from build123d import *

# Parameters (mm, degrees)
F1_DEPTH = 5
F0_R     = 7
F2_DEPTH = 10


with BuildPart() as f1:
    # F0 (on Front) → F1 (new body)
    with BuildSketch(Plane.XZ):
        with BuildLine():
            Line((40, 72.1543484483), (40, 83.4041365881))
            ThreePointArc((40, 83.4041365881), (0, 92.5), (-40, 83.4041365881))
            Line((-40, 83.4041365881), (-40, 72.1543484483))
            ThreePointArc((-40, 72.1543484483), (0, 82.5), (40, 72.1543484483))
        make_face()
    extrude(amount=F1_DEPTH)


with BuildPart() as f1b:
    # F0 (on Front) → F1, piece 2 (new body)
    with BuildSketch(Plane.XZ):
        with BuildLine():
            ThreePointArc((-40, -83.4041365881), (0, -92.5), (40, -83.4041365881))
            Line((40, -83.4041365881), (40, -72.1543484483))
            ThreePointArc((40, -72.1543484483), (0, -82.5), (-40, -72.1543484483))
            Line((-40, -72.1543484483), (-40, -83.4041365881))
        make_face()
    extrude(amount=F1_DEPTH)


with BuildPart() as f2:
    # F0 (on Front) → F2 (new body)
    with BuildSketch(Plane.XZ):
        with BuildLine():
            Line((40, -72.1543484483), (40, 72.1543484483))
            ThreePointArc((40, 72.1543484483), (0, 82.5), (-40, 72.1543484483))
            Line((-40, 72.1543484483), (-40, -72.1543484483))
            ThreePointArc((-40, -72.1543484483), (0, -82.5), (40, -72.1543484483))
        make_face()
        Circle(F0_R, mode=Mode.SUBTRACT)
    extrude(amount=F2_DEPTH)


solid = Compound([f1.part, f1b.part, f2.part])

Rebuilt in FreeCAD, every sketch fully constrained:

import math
import FreeCAD as App
import Part
import Sketcher
from FreeCAD import Vector

doc = App.newDocument("Part")
body = doc.addObject("PartDesign::Body", "Body")

# Sketch on XZ plane
sketch1 = body.newObject("Sketcher::SketchObject", "Sketch")
sketch1.AttachmentSupport = (doc.getObject("XZ_Plane"), [""])
sketch1.MapMode = "FlatFace"
sketch1.addGeometry([
    Part.LineSegment(Vector(40, 72, 0), Vector(40, 83, 0)),
    Part.ArcOfCircle(Part.Circle(Vector(0, 0, 0), Vector(0, 0, 1), 92), math.radians(64), math.radians(116)),
    Part.LineSegment(Vector(-40, 83, 0), Vector(-40, 72, 0)),
    Part.ArcOfCircle(Part.Circle(Vector(0, 0, 0), Vector(0, 0, 1), 82), math.radians(61), math.radians(119)),
], False)
sketch1.addConstraint([
    Sketcher.Constraint("Coincident", 0, 2, 1, 1),
    Sketcher.Constraint("Coincident", 1, 2, 2, 1),
    Sketcher.Constraint("Coincident", 2, 2, 3, 2),
    Sketcher.Constraint("Coincident", 3, 1, 0, 1),
    Sketcher.Constraint("Vertical", 0),
    Sketcher.Constraint("Vertical", 2),
    Sketcher.Constraint("Coincident", 1, 3, -1, 1),
    Sketcher.Constraint("Coincident", 3, 3, -1, 1),
    Sketcher.Constraint("Horizontal", 0, 2, 1, 2),
    Sketcher.Constraint("Radius", 1, 92.5),
    Sketcher.Constraint("Radius", 3, 82.5),
    Sketcher.Constraint("DistanceX", -1, 1, 0, 2, 40.0),
])
pad1 = body.newObject("PartDesign::Pad", "Pad")
pad1.Profile = sketch1
pad1.Length = 5
body2 = doc.addObject("PartDesign::Body", "Body001")

# Sketch on XZ plane
sketch2 = body2.newObject("Sketcher::SketchObject", "Sketch001")
sketch2.AttachmentSupport = (doc.getObject("XZ_Plane001"), [""])
sketch2.MapMode = "FlatFace"
sketch2.addGeometry([
    Part.ArcOfCircle(Part.Circle(Vector(0, 0, 0), Vector(0, 0, 1), 92), math.radians(-116), math.radians(-64)),
    Part.LineSegment(Vector(40, -83, 0), Vector(40, -72, 0)),
    Part.ArcOfCircle(Part.Circle(Vector(0, 0, 0), Vector(0, 0, 1), 82), math.radians(-119), math.radians(-61)),
    Part.LineSegment(Vector(-40, -72, 0), Vector(-40, -83, 0)),
], False)
sketch2.addConstraint([
    Sketcher.Constraint("Coincident", 0, 2, 1, 1),
    Sketcher.Constraint("Coincident", 1, 2, 2, 2),
    Sketcher.Constraint("Coincident", 2, 1, 3, 1),
    Sketcher.Constraint("Coincident", 3, 2, 0, 1),
    Sketcher.Constraint("Vertical", 1),
    Sketcher.Constraint("Vertical", 3),
    Sketcher.Constraint("Coincident", 0, 3, -1, 1),
    Sketcher.Constraint("Coincident", 2, 3, -1, 1),
    Sketcher.Constraint("Horizontal", 1, 2, 2, 1),
    Sketcher.Constraint("Radius", 0, 92.5),
    Sketcher.Constraint("Radius", 2, 82.5),
    Sketcher.Constraint("DistanceX", -1, 1, 0, 2, 40.0),
])
pad2 = body2.newObject("PartDesign::Pad", "Pad001")
pad2.Profile = sketch2
pad2.Length = 5
body3 = doc.addObject("PartDesign::Body", "Body002")

# Sketch on XZ plane
sketch3 = body3.newObject("Sketcher::SketchObject", "Sketch002")
sketch3.AttachmentSupport = (doc.getObject("XZ_Plane002"), [""])
sketch3.MapMode = "FlatFace"
sketch3.addGeometry([
    Part.LineSegment(Vector(40, -72, 0), Vector(40, 72, 0)),  # 0
    Part.ArcOfCircle(Part.Circle(Vector(0, 0, 0), Vector(0, 0, 1), 82), math.radians(61), math.radians(119)),  # 1
    Part.LineSegment(Vector(-40, 72, 0), Vector(-40, -72, 0)),  # 2
    Part.ArcOfCircle(Part.Circle(Vector(0, 0, 0), Vector(0, 0, 1), 82), math.radians(-119), math.radians(-61)),  # 3
    Part.Circle(Vector(0, 0, 0), Vector(0, 0, 1), 7),  # 4
], False)
sketch3.addConstraint([
    Sketcher.Constraint("Coincident", 0, 2, 1, 1),
    Sketcher.Constraint("Coincident", 1, 2, 2, 1),
    Sketcher.Constraint("Coincident", 2, 2, 3, 1),
    Sketcher.Constraint("Coincident", 3, 2, 0, 1),
    Sketcher.Constraint("Vertical", 0),
    Sketcher.Constraint("Vertical", 2),
    Sketcher.Constraint("Coincident", 1, 3, -1, 1),
    Sketcher.Constraint("Coincident", 3, 3, -1, 1),
    Sketcher.Constraint("Coincident", 4, 3, -1, 1),
    Sketcher.Constraint("Equal", 1, 3),
    Sketcher.Constraint("Horizontal", 0, 2, 1, 2),
    Sketcher.Constraint("Diameter", 4, 14.0),
    Sketcher.Constraint("Radius", 1, 82.5),
    Sketcher.Constraint("DistanceX", -1, 1, 0, 2, 40.0),
])
pad3 = body3.newObject("PartDesign::Pad", "Pad002")
pad3.Profile = sketch3
pad3.Length = 10

doc.recompute()
